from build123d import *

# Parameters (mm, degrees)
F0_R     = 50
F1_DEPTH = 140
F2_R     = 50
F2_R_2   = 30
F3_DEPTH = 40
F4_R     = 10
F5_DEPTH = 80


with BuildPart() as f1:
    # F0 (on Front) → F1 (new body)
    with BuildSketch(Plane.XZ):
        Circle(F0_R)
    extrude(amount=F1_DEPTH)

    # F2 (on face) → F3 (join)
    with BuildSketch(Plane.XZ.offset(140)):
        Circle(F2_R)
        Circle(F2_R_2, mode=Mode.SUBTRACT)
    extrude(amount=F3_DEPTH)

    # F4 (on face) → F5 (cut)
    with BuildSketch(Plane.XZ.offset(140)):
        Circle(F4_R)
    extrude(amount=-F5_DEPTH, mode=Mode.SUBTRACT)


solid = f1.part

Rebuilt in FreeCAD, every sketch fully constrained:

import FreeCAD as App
import Part
import Sketcher
Q = App.Units.Quantity

doc = App.newDocument("Part")
body = doc.addObject("PartDesign::Body", "Body")

sketch1 = body.newObject("Sketcher::SketchObject", "Sketch")
sketch1.AttachmentSupport = (doc.getObject("XZ_Plane"), [""])
sketch1.MapMode = "FlatFace"
sketch1.addGeometry(Part.Circle(App.Vector(0, 0, 0), App.Vector(0, 0, 1), 50), False)
sketch1.addConstraint([
    Sketcher.Constraint("Coincident", 0, 3, -1, 1),
    Sketcher.Constraint("Diameter", 0, Q("100 mm")),
])
pad1 = body.newObject("PartDesign::Pad", "Pad")
pad1.Profile = sketch1
pad1.Length = 140

sketch2 = body.newObject("Sketcher::SketchObject", "Sketch001")
sketch2.AttachmentSupport = (doc.getObject("XZ_Plane"), [""])
sketch2.MapMode = "FlatFace"
sketch2.AttachmentOffset = App.Placement(App.Vector(0, 0, 140), App.Rotation())
sketch2.addGeometry([
    Part.Circle(App.Vector(0, 0, 0), App.Vector(0, 0, 1), 50),
    Part.Circle(App.Vector(0, 0, 0), App.Vector(0, 0, 1), 30),
], False)
sketch2.addConstraint([
    Sketcher.Constraint("Coincident", 0, 3, -1, 1),
    Sketcher.Constraint("Coincident", 1, 3, -1, 1),
    Sketcher.Constraint("Diameter", 0, Q("100 mm")),
    Sketcher.Constraint("Diameter", 1, Q("60 mm")),
])
pad2 = body.newObject("PartDesign::Pad", "Pad001")
pad2.Profile = sketch2
pad2.Length = 40

sketch3 = body.newObject("Sketcher::SketchObject", "Sketch002")
sketch3.AttachmentSupport = (doc.getObject("XZ_Plane"), [""])
sketch3.MapMode = "FlatFace"
sketch3.AttachmentOffset = App.Placement(App.Vector(0, 0, 140), App.Rotation())
sketch3.addGeometry(Part.Circle(App.Vector(0, 0, 0), App.Vector(0, 0, 1), 10), False)
sketch3.addConstraint([
    Sketcher.Constraint("Coincident", 0, 3, -1, 1),
    Sketcher.Constraint("Diameter", 0, Q("20 mm")),
])
pocket1 = body.newObject("PartDesign::Pocket", "Pocket")
pocket1.Profile = sketch3
pocket1.Length = 80

doc.recompute()
